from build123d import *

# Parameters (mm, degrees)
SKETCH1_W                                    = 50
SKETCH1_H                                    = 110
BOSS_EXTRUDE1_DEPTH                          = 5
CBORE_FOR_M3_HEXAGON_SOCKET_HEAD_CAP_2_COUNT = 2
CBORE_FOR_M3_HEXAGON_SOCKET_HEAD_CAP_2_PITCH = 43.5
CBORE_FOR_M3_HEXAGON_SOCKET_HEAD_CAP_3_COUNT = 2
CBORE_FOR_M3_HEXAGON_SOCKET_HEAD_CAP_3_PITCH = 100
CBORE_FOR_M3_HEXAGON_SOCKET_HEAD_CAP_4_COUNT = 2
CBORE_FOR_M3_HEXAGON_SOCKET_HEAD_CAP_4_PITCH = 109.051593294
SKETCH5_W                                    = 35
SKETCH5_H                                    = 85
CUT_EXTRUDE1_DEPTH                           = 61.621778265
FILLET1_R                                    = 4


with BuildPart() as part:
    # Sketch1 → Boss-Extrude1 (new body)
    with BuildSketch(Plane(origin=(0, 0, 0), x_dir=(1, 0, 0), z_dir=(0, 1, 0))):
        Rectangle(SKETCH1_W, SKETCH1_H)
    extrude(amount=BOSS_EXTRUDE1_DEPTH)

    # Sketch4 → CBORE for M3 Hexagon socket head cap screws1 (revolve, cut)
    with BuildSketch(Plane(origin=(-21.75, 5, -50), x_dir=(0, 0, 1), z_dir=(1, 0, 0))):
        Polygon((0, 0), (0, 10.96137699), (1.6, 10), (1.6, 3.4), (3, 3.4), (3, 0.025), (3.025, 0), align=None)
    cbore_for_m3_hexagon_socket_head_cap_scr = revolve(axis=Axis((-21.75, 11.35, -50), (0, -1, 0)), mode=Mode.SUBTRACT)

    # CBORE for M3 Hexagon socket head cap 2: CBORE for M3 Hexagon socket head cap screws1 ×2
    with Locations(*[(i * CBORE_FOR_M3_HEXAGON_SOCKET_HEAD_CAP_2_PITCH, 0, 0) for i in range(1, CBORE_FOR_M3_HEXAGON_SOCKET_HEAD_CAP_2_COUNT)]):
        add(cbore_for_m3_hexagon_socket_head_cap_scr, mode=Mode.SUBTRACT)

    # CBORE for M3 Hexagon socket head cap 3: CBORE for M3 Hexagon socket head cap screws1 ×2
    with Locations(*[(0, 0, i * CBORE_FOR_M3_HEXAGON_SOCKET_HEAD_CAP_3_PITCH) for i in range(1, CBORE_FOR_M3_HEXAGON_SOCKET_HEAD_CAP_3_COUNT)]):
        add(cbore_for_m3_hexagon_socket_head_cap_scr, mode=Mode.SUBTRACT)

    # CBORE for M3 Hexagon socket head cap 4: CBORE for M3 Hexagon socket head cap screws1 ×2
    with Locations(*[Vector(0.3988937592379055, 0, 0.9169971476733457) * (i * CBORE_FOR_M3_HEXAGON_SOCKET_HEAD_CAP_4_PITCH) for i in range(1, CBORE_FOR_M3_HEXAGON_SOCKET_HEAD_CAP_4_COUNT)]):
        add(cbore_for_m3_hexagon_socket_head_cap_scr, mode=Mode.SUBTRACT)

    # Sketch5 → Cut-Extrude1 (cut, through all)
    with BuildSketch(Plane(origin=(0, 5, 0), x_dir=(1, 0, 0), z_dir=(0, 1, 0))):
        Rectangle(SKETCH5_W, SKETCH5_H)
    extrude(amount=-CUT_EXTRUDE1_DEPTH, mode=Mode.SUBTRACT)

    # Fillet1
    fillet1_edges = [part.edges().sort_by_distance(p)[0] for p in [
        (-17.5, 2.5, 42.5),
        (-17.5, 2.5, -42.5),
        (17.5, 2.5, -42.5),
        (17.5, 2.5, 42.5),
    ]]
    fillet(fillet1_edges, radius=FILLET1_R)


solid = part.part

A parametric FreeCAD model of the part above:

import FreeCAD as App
import Part
import Sketcher
Q = App.Units.Quantity


def edges_at(feature, points):
    """Names of the edges that pass closest to the given points."""
    edges = feature.Shape.Edges
    near = lambda p: min(range(len(edges)), key=lambda i: edges[i].distToShape(Part.Vertex(*p))[0])
    return sorted({f"Edge{near(p) + 1}" for p in points})


def add_polygon(sketch, points):
    """Adds a closed chain of lines whose ends are joined by coincident constraints."""
    first, n = sketch.GeometryCount, len(points)
    for a, b in zip(points, points[1:] + points[:1]):
        sketch.addGeometry(Part.LineSegment(App.Vector(*a, 0), App.Vector(*b, 0)), False)
    for i in range(n):
        sketch.addConstraint(Sketcher.Constraint("Coincident", first + i, 2, first + (i + 1) % n, 1))

doc = App.newDocument("Part")
body = doc.addObject("PartDesign::Body", "Body")

# Sketch on XZ plane
sketch1 = body.newObject("Sketcher::SketchObject", "Sketch")
sketch1.AttachmentSupport = (doc.getObject("XZ_Plane"), [""])
sketch1.MapMode = "FlatFace"
add_polygon(sketch1, [(-25, -55), (-25, 55), (25, 55), (25, -55)])  # lines 0-3
sketch1.addConstraint([
    Sketcher.Constraint("Vertical", 0),
    Sketcher.Constraint("Horizontal", 1),
    Sketcher.Constraint("Vertical", 2),
    Sketcher.Constraint("Horizontal", 3),
    Sketcher.Constraint("Symmetric", 0, 2, 2, 2, -1, 1),
    Sketcher.Constraint("DistanceX", 1, 1, 1, 2, Q("50 mm")),
    Sketcher.Constraint("DistanceY", 0, 1, 0, 2, Q("110 mm")),
])
pad1 = body.newObject("PartDesign::Pad", "Pad")
pad1.Profile = sketch1
pad1.Length = 5
pad1.Reversed = True

# Sketch on YZ plane
sketch2 = body.newObject("Sketcher::SketchObject", "Sketch001")
sketch2.AttachmentSupport = (doc.getObject("YZ_Plane"), [""])
sketch2.MapMode = "FlatFace"
sketch2.AttachmentOffset = App.Placement(App.Vector(0, 0, -21.75), App.Rotation())
add_polygon(sketch2, [(-5.961, -50), (5, -50), (5, -46.975), (4.975, -47), (1.6, -47), (1.6, -48.4), (-5, -48.4)])  # lines 0-6
sketch2.addGeometry(Part.LineSegment(App.Vector(5, -50, 0), App.Vector(-5.961, -50, 0)), True)  # axis
sketch2.addConstraint([
    Sketcher.Constraint("Horizontal", 0),
    Sketcher.Constraint("Vertical", 1),
    Sketcher.Constraint("Horizontal", 3),
    Sketcher.Constraint("Vertical", 4),
    Sketcher.Constraint("Horizontal", 5),
    Sketcher.Constraint("Horizontal", 7),
    Sketcher.Constraint("Coincident", 7, 1, 0, 2),
    Sketcher.Constraint("Equal", 0, 7),
    Sketcher.Constraint("Angle", 2, Q("-135 deg")),
    Sketcher.Constraint("Angle", 6, Q("-121 deg")),
    Sketcher.Constraint("DistanceX", 5, 2, 5, 1, Q("6.6 mm")),
    Sketcher.Constraint("DistanceY", 4, 2, 4, 1, Q("1.4 mm")),
    Sketcher.Constraint("DistanceX", -1, 1, 0, 2, Q("5 mm")),
    Sketcher.Constraint("DistanceY", 0, 2, -1, 1, Q("50 mm")),
    Sketcher.Constraint("DistanceY", 2, 2, -1, 1, Q("47 mm")),
    Sketcher.Constraint("DistanceX", 5, 2, -1, 1, Q("5 mm")),
    Sketcher.Constraint("DistanceX", 3, 2, 3, 1, Q("3.375 mm")),
])
groove = body.newObject("PartDesign::Groove", "Groove")
groove.Profile = sketch2
groove.ReferenceAxis = (sketch2, ["Axis0"])
groove.Angle = 360
doc.recompute()

linearpattern = body.newObject("PartDesign::LinearPattern", "LinearPattern")
linearpattern.Originals = [groove]
linearpattern.Direction = (doc.getObject("X_Axis"), [""])
linearpattern.Mode = "offset"
linearpattern.Offset = 43.5
linearpattern.Occurrences = 2
body.Tip = linearpattern
doc.recompute()

linearpattern2 = body.newObject("PartDesign::LinearPattern", "LinearPattern001")
linearpattern2.Originals = [groove]
linearpattern2.Direction = (doc.getObject("Z_Axis"), [""])
linearpattern2.Mode = "offset"
linearpattern2.Offset = 100
linearpattern2.Occurrences = 2
body.Tip = linearpattern2
doc.recompute()

datumline = body.newObject("PartDesign::Line", "DatumLine")
datumline.Placement = App.Placement(App.Vector(0, 0, 0), App.Rotation(App.Vector(0, 0, 1), App.Vector(0.398893759, 0, 0.916997148)))
linearpattern3 = body.newObject("PartDesign::LinearPattern", "LinearPattern002")
linearpattern3.Originals = [groove]
linearpattern3.Direction = (datumline, [""])
linearpattern3.Mode = "offset"
linearpattern3.Offset = 109.051593
linearpattern3.Occurrences = 2
body.Tip = linearpattern3

# Sketch on XZ plane
sketch3 = body.newObject("Sketcher::SketchObject", "Sketch002")
sketch3.AttachmentSupport = (doc.getObject("XZ_Plane"), [""])
sketch3.MapMode = "FlatFace"
sketch3.AttachmentOffset = App.Placement(App.Vector(0, 0, -5), App.Rotation())
add_polygon(sketch3, [(-18, -42), (-18, 42), (18, 42), (18, -42)])  # lines 0-3
sketch3.addConstraint([
    Sketcher.Constraint("Vertical", 0),
    Sketcher.Constraint("Horizontal", 1),
    Sketcher.Constraint("Vertical", 2),
    Sketcher.Constraint("Horizontal", 3),
    Sketcher.Constraint("Symmetric", 0, 2, 2, 2, -1, 1),
    Sketcher.Constraint("DistanceX", 1, 1, 1, 2, Q("35 mm")),
    Sketcher.Constraint("DistanceY", 0, 1, 0, 2, Q("85 mm")),
])
pocket1 = body.newObject("PartDesign::Pocket", "Pocket")
pocket1.Profile = sketch3
pocket1.Type = "ThroughAll"
pocket1.Reversed = True
doc.recompute()

fillet = body.newObject("PartDesign::Fillet", "Fillet")
fillet.Base = (pocket1, edges_at(pocket1, [
    (-17.5, 2.5, 42.5),
    (-17.5, 2.5, -42.5),
    (17.5, 2.5, -42.5),
    (17.5, 2.5, 42.5),
]))
fillet.Radius = 4

doc.recompute()
